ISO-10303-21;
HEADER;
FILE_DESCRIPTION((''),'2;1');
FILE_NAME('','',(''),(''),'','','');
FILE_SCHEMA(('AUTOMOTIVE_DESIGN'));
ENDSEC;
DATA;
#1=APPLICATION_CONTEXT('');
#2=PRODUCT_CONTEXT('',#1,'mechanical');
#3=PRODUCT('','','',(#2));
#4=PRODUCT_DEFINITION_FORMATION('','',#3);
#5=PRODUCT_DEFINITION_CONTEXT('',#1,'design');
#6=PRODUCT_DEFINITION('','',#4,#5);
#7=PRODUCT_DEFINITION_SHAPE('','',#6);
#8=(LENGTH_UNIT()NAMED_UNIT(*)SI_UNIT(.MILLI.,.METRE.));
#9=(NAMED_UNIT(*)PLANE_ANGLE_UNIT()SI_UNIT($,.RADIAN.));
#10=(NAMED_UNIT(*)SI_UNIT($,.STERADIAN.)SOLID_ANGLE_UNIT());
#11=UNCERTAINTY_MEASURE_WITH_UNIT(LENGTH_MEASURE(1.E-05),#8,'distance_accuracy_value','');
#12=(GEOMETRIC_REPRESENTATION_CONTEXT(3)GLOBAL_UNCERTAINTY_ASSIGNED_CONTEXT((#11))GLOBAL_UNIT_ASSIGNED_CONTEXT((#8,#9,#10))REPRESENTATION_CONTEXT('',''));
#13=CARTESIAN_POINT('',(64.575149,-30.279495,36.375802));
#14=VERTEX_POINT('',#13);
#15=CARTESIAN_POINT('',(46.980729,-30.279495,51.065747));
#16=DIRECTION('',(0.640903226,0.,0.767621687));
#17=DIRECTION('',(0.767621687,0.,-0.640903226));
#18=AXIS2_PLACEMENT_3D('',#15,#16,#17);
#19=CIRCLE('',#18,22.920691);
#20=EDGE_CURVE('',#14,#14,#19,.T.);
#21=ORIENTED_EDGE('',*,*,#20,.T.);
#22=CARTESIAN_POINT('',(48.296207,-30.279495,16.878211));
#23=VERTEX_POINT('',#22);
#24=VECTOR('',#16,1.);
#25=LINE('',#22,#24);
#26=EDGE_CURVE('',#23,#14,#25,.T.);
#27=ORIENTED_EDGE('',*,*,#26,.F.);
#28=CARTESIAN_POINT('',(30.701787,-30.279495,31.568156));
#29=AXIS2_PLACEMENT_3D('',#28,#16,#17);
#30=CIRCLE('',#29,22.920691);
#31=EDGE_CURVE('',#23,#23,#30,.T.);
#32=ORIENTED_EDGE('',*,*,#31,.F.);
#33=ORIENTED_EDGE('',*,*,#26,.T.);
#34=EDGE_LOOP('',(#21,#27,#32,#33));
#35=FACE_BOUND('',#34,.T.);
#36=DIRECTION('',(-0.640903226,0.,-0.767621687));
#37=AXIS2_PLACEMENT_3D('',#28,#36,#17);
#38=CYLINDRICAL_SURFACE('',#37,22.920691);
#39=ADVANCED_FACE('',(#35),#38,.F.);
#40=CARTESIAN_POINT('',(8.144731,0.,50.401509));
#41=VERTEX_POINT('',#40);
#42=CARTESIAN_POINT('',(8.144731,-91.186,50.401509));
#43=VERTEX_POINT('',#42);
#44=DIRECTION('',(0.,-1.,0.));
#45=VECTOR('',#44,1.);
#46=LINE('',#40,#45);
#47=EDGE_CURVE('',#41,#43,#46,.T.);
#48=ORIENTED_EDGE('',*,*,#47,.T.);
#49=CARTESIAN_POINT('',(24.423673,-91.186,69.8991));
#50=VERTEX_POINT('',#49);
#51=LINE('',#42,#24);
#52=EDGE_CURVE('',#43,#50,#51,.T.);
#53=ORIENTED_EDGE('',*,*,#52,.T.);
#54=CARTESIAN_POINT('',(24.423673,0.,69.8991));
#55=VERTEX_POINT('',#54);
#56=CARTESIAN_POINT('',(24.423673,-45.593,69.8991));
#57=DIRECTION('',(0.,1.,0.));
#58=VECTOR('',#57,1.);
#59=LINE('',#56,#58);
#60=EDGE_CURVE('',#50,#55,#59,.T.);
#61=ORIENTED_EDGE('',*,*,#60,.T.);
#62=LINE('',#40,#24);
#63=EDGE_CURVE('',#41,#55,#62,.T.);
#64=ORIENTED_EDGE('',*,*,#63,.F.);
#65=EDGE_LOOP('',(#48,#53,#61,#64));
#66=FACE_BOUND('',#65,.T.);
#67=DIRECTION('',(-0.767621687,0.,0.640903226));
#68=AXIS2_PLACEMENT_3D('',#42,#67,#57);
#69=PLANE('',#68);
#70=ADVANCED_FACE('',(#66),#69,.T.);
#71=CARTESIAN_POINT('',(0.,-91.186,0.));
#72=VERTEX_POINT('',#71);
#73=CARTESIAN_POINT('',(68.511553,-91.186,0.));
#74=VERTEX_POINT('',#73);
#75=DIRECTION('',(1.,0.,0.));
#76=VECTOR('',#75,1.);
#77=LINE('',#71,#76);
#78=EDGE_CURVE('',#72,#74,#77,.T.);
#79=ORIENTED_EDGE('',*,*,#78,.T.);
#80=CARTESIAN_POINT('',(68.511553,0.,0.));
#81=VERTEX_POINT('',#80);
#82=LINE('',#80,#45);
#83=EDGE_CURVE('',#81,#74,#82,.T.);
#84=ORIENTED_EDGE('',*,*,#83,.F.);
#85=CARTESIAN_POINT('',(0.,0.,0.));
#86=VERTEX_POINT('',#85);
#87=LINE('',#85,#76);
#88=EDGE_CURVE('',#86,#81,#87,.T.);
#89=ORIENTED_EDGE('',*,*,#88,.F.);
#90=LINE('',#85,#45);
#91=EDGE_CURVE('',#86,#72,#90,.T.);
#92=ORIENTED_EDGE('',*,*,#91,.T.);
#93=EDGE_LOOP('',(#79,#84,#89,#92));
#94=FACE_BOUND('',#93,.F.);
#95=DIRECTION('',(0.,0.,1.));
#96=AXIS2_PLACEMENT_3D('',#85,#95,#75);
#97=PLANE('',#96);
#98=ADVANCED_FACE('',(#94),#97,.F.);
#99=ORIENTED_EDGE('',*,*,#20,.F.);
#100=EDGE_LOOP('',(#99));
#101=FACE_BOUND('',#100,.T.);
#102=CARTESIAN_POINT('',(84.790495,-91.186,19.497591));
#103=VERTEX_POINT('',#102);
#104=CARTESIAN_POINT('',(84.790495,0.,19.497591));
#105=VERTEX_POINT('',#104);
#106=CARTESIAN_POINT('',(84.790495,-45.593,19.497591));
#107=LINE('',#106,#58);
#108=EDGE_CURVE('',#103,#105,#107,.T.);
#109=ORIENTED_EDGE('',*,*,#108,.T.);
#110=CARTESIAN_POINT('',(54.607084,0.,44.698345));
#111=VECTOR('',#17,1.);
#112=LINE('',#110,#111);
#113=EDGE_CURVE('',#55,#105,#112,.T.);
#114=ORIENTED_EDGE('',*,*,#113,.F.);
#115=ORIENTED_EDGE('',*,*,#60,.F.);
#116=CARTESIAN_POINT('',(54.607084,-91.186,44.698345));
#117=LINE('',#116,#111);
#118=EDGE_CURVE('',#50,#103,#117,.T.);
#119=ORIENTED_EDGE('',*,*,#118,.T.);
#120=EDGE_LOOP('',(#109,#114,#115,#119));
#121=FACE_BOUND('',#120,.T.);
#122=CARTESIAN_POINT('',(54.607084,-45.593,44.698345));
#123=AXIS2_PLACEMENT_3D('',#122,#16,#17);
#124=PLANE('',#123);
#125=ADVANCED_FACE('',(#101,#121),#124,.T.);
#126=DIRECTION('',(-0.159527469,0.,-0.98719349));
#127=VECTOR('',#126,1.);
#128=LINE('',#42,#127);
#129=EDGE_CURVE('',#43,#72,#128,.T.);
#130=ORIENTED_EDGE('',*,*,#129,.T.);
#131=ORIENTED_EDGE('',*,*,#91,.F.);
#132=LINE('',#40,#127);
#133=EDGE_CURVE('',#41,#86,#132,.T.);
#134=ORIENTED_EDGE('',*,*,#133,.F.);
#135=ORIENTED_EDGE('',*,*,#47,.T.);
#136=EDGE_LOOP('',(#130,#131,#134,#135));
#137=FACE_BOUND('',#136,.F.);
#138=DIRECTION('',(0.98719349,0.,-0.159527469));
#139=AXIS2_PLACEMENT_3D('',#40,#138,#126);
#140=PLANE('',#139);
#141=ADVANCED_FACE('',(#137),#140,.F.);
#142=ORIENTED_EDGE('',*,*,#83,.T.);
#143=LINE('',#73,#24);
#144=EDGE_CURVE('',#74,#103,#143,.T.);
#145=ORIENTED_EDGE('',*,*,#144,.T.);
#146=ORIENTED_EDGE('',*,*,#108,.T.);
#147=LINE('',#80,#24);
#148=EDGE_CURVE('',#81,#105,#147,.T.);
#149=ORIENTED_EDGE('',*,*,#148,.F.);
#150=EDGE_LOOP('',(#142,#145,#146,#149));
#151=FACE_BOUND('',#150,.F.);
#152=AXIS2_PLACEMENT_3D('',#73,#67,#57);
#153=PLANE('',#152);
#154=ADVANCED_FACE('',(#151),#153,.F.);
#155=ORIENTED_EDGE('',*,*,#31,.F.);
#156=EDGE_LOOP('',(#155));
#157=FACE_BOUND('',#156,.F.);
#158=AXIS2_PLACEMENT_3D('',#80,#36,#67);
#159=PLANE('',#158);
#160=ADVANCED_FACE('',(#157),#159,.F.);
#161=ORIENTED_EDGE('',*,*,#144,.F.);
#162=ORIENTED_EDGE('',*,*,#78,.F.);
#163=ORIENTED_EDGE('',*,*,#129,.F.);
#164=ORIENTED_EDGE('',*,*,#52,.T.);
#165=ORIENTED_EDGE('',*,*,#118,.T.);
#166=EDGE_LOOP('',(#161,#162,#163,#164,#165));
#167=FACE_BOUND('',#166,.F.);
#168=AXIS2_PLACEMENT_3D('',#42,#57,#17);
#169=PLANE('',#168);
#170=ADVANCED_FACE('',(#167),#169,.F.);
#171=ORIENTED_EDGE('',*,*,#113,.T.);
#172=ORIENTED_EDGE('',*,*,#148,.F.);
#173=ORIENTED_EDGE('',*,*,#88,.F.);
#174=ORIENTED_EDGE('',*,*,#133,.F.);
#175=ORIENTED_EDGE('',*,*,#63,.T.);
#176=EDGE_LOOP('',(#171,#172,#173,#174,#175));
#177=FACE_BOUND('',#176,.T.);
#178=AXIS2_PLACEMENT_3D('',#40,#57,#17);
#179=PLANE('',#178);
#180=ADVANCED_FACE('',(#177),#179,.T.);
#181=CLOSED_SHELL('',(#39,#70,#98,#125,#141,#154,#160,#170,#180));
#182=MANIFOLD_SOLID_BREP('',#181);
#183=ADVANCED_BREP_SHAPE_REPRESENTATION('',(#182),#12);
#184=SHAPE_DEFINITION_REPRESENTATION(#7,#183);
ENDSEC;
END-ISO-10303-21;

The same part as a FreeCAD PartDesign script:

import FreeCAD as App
import Part
import Sketcher
Q = App.Units.Quantity

doc = App.newDocument("Part")
body = doc.addObject("PartDesign::Body", "Body")

# Sketch on XZ plane
sketch1 = doc.addObject("Sketcher::SketchObject", "Sketch")
body.addObject(sketch1)
sketch1.AttachmentSupport = (doc.XZ_Plane, [""])
sketch1.MapMode = "FlatFace"
sketch1.addGeometry(Part.LineSegment(App.Vector(8.144731, 50.401509, 0), App.Vector(0, 0, 0)), False)
sketch1.addGeometry(Part.LineSegment(App.Vector(0, 0, 0), App.Vector(68.511553, 0, 0)), False)
sketch1.addGeometry(Part.LineSegment(App.Vector(68.511553, 0, 0), App.Vector(8.144731, 50.401509, 0)), False)
sketch1.addConstraint(Sketcher.Constraint("Coincident", 0, 2, 1, 1))
sketch1.addConstraint(Sketcher.Constraint("Coincident", 1, 2, 2, 1))
sketch1.addConstraint(Sketcher.Constraint("Coincident", 2, 2, 0, 1))
sketch1.addConstraint(Sketcher.Constraint("Horizontal", 1))
sketch1.addConstraint(Sketcher.Constraint("Coincident", 0, 2, -1, 1))
sketch1.addConstraint(Sketcher.Constraint("Distance", 0, 51.05535))
sketch1.addConstraint(Sketcher.Constraint("Distance", 2, 78.641372))
sketch1.addConstraint(Sketcher.Constraint("DistanceX", 1, 1, 1, 2, 68.511553))
pad1 = doc.addObject("PartDesign::Pad", "Pad")
body.addObject(pad1)
pad1.Profile = sketch1
pad1.Length = Q("3.59 in")

# Sketch on an angled plane
sketch2 = doc.addObject("Sketcher::SketchObject", "Sketch001")
body.addObject(sketch2)
sketch2.Placement = App.Placement(App.Vector(28.141596, 0, 33.705712), App.Rotation(App.Vector(0.767621687, 0, -0.640903226), App.Vector(0, 0.999999999, 0), App.Vector(0.640903226, 0, 0.767621687), "ZXY"))
sketch2.addGeometry(Part.LineSegment(App.Vector(-26.050418, 0, 0), App.Vector(-26.050418, -91.186, 0)), False)
sketch2.addGeometry(Part.LineSegment(App.Vector(-26.050418, -91.186, 0), App.Vector(52.590954, -91.186, 0)), False)
sketch2.addGeometry(Part.LineSegment(App.Vector(52.590954, -91.186, 0), App.Vector(52.590954, 0, 0)), False)
sketch2.addGeometry(Part.LineSegment(App.Vector(52.590954, 0, 0), App.Vector(-26.050418, 0, 0)), False)
sketch2.addGeometry(Part.Circle(App.Vector(3.335225, -30.279495, 0), App.Vector(0, 0, 1), 22.920691), False)
sketch2.addConstraint(Sketcher.Constraint("Coincident", 0, 2, 1, 1))
sketch2.addConstraint(Sketcher.Constraint("Coincident", 1, 2, 2, 1))
sketch2.addConstraint(Sketcher.Constraint("Coincident", 2, 2, 3, 1))
sketch2.addConstraint(Sketcher.Constraint("Coincident", 3, 2, 0, 1))
sketch2.addConstraint(Sketcher.Constraint("Vertical", 0))
sketch2.addConstraint(Sketcher.Constraint("Horizontal", 1))
sketch2.addConstraint(Sketcher.Constraint("Vertical", 2))
sketch2.addConstraint(Sketcher.Constraint("Horizontal", 3))
sketch2.addConstraint(Sketcher.Constraint("PointOnObject", 2, 2, -1))
sketch2.addConstraint(Sketcher.Constraint("DistanceY", 0, 2, 0, 1, Q("3.59 in")))
sketch2.addConstraint(Sketcher.Constraint("Diameter", 4, 45.841383))
sketch2.addConstraint(Sketcher.Constraint("DistanceX", 1, 1, 1, 2, 78.641372))
sketch2.addConstraint(Sketcher.Constraint("DistanceX", 4, 3, 1, 2, 49.255729))
sketch2.addConstraint(Sketcher.Constraint("DistanceX", -1, 1, 4, 3, 3.335225))
sketch2.addConstraint(Sketcher.Constraint("DistanceY", 4, 3, -1, 1, 30.279495))
pad2 = doc.addObject("PartDesign::Pad", "Pad001")
body.addObject(pad2)
pad2.Profile = sketch2
pad2.Length = Q("1 in")

doc.recompute()
